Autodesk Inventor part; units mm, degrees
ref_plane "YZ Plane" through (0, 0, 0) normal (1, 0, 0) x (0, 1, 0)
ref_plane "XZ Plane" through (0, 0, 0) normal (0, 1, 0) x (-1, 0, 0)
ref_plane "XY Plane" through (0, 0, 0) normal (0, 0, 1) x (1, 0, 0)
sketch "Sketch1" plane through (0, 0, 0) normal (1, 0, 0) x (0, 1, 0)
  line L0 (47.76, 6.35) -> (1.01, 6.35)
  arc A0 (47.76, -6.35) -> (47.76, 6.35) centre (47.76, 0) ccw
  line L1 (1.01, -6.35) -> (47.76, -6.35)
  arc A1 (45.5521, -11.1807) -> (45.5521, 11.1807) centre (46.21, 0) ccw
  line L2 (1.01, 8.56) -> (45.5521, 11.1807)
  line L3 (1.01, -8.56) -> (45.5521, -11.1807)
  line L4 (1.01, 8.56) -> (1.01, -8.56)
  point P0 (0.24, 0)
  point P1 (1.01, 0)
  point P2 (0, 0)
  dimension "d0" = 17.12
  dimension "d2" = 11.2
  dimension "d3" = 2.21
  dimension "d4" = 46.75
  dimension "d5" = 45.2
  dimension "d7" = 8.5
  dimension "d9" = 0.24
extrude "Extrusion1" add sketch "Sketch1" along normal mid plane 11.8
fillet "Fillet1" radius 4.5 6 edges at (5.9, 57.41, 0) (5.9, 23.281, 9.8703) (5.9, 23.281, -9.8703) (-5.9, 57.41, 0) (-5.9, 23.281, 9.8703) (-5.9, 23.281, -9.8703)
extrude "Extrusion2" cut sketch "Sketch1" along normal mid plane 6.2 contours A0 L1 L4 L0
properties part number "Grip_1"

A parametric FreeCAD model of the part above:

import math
import FreeCAD as App
import Part
import Sketcher
from FreeCAD import Vector


def edges_at(feature, points):
    """Names of the edges that pass closest to the given points."""
    edges = feature.Shape.Edges
    near = lambda p: min(range(len(edges)), key=lambda i: edges[i].distToShape(Part.Vertex(*p))[0])
    return sorted({f"Edge{near(p) + 1}" for p in points})

doc = App.newDocument("Part")
body = doc.addObject("PartDesign::Body", "Body")

sketch1 = body.newObject("Sketcher::SketchObject", "Sketch")
sketch1.AttachmentSupport = (doc.getObject("YZ_Plane"), [""])
sketch1.MapMode = "FlatFace"
sketch1.addGeometry([
    Part.LineSegment(Vector(1.01, -8.56, 0), Vector(45.5521, -11.1807, 0)),
    Part.ArcOfCircle(Part.Circle(Vector(46.21, 0, 0), Vector(0, 0, 1), 11.20004), math.radians(-93.367542), math.radians(93.367542)),
    Part.LineSegment(Vector(45.5521, 11.1807, 0), Vector(1.01, 8.56, 0)),
    Part.LineSegment(Vector(1.01, 8.56, 0), Vector(1.01, -8.56, 0)),
], False)
sketch1.addConstraint([
    Sketcher.Constraint("Tangent", 0, 2, 1, 1),
    Sketcher.Constraint("Tangent", 1, 2, 2, 1),
    Sketcher.Constraint("Coincident", 2, 2, 3, 1),
    Sketcher.Constraint("Coincident", 3, 2, 0, 1),
    Sketcher.Constraint("Vertical", 3),
    Sketcher.Constraint("Symmetric", 0, 2, 1, 2, -1),
    Sketcher.Constraint("Radius", 1, 11.2),
    Sketcher.Constraint("DistanceY", 3, 2, 3, 1, 17.12),
    Sketcher.Constraint("DistanceX", 2, 2, 1, 3, 45.2),
    Sketcher.Constraint("DistanceX", -1, 1, 1, 3, 46.21),
])
pad1 = body.newObject("PartDesign::Pad", "Pad")
pad1.Profile = sketch1
pad1.Length = 11.8
pad1.Midplane = True
doc.recompute()

fillet = body.newObject("PartDesign::Fillet", "Fillet")
fillet.Base = (pad1, edges_at(pad1, [
    (5.9, 57.41, 0),
    (5.9, 23.281, 9.87),
    (5.9, 23.281, -9.87),
    (-5.9, 57.41, 0),
    (-5.9, 23.281, 9.87),
    (-5.9, 23.281, -9.87),
]))
fillet.Radius = 4.5

sketch2 = body.newObject("Sketcher::SketchObject", "Sketch001")
sketch2.AttachmentSupport = (doc.getObject("YZ_Plane"), [""])
sketch2.MapMode = "FlatFace"
sketch2.addGeometry([
    Part.ArcOfCircle(Part.Circle(Vector(47.76, 0, 0), Vector(0, 0, 1), 6.35), math.radians(-90), math.radians(90)),
    Part.LineSegment(Vector(47.76, 6.35, 0), Vector(1.01, 6.35, 0)),
    Part.LineSegment(Vector(1.01, 6.35, 0), Vector(1.01, -6.35, 0)),
    Part.LineSegment(Vector(1.01, -6.35, 0), Vector(47.76, -6.35, 0)),
], False)
sketch2.addConstraint([
    Sketcher.Constraint("Tangent", 0, 2, 1, 1),
    Sketcher.Constraint("Coincident", 1, 2, 2, 1),
    Sketcher.Constraint("Coincident", 2, 2, 3, 1),
    Sketcher.Constraint("Tangent", 3, 2, 0, 1),
    Sketcher.Constraint("Horizontal", 1),
    Sketcher.Constraint("Vertical", 2),
    Sketcher.Constraint("Horizontal", 3),
    Sketcher.Constraint("PointOnObject", 0, 3, -1),
    Sketcher.Constraint("DistanceX", 1, 2, 1, 1, 46.75),
    Sketcher.Constraint("Radius", 0, 6.35),
    Sketcher.Constraint("DistanceX", -1, 1, 0, 3, 47.76),
])
pocket1 = body.newObject("PartDesign::Pocket", "Pocket")
pocket1.Profile = sketch2
pocket1.Length = 6.2
pocket1.Midplane = True

doc.recompute()
